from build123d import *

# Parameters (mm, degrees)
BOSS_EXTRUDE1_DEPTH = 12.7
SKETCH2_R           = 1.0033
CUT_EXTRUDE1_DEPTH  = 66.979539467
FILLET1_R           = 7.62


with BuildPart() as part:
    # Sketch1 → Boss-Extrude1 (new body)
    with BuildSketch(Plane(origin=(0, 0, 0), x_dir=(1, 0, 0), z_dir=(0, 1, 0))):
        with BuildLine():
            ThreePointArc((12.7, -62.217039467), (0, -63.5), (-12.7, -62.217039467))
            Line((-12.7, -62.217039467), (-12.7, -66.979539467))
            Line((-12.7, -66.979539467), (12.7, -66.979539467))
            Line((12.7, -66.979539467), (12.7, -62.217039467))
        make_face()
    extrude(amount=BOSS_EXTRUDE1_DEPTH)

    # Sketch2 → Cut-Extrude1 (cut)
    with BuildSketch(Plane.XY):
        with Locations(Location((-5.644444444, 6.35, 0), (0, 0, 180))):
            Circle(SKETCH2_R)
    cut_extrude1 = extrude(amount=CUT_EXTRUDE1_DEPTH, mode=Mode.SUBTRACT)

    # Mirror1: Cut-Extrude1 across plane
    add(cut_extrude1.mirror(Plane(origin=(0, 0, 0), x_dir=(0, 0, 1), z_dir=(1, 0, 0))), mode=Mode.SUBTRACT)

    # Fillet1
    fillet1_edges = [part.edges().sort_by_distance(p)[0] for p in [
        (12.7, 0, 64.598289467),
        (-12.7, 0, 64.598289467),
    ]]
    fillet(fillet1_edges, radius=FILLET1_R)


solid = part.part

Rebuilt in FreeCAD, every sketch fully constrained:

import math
import FreeCAD as App
import Part
import Sketcher
from FreeCAD import Vector
Q = App.Units.Quantity


def edges_at(feature, points):
    """Names of the edges that pass closest to the given points."""
    edges = feature.Shape.Edges
    near = lambda p: min(range(len(edges)), key=lambda i: edges[i].distToShape(Part.Vertex(*p))[0])
    return sorted({f"Edge{near(p) + 1}" for p in points})

doc = App.newDocument("Part")
body = doc.addObject("PartDesign::Body", "Body")

# Sketch on XZ plane
sketch1 = doc.addObject("Sketcher::SketchObject", "Sketch")
body.addObject(sketch1)
sketch1.AttachmentSupport = (doc.XZ_Plane, [""])
sketch1.MapMode = "FlatFace"
sketch1.addGeometry([
    Part.ArcOfCircle(Part.Circle(Vector(0, 0, 0), Vector(0, 0, 1), 63.5), math.radians(78), math.radians(102)),
    Part.LineSegment(Vector(-12.7, 62.2, 0), Vector(-12.7, 67, 0)),
    Part.LineSegment(Vector(-12.7, 67, 0), Vector(12.7, 67, 0)),
    Part.LineSegment(Vector(12.7, 67, 0), Vector(12.7, 62.2, 0)),
], False)
sketch1.addConstraint([
    Sketcher.Constraint("Coincident", 0, 2, 1, 1),
    Sketcher.Constraint("Coincident", 1, 2, 2, 1),
    Sketcher.Constraint("Coincident", 2, 2, 3, 1),
    Sketcher.Constraint("Coincident", 3, 2, 0, 1),
    Sketcher.Constraint("Vertical", 1),
    Sketcher.Constraint("Horizontal", 2),
    Sketcher.Constraint("Vertical", 3),
    Sketcher.Constraint("Coincident", 0, 3, -1, 1),
    Sketcher.Constraint("Horizontal", 0, 2, 3, 2),
    Sketcher.Constraint("Radius", 0, Q("2.5 in")),
    Sketcher.Constraint("DistanceX", 2, 1, 2, 2, Q("1 in")),
    Sketcher.Constraint("DistanceY", 1, 1, 1, 2, Q("0.1875 in")),
])
pad1 = doc.addObject("PartDesign::Pad", "Pad")
body.addObject(pad1)
pad1.Profile = sketch1
pad1.Length = Q("0.5 in")
pad1.Reversed = True

# Sketch on XY plane
sketch2 = doc.addObject("Sketcher::SketchObject", "Sketch001")
body.addObject(sketch2)
sketch2.AttachmentSupport = (doc.XY_Plane, [""])
sketch2.MapMode = "FlatFace"
sketch2.addGeometry(Part.Circle(Vector(-5.6, 6.3, 0), Vector(0, 0, 1), 1), False)
sketch2.addConstraint([
    Sketcher.Constraint("Diameter", 0, Q("0.079 in")),
    Sketcher.Constraint("DistanceY", -1, 1, 0, 3, Q("0.25 in")),
    Sketcher.Constraint("DistanceX", 0, 3, -1, 1, 5.644444),
])
pocket1 = doc.addObject("PartDesign::Pocket", "Pocket")
body.addObject(pocket1)
pocket1.Profile = sketch2
pocket1.Length = 66.979539
pocket1.Reversed = True
doc.recompute()

mirrored = doc.addObject("PartDesign::Mirrored", "Mirrored")
body.addObject(mirrored)
mirrored.Originals = [pocket1]
mirrored.MirrorPlane = (doc.YZ_Plane, [""])
body.Tip = mirrored
doc.recompute()

fillet = doc.addObject("PartDesign::Fillet", "Fillet")
body.addObject(fillet)
fillet.Base = (mirrored, edges_at(mirrored, [(12.7, 0, 64.598), (-12.7, 0, 64.598)]))
fillet.Radius = Q("0.3 in")

doc.recompute()
